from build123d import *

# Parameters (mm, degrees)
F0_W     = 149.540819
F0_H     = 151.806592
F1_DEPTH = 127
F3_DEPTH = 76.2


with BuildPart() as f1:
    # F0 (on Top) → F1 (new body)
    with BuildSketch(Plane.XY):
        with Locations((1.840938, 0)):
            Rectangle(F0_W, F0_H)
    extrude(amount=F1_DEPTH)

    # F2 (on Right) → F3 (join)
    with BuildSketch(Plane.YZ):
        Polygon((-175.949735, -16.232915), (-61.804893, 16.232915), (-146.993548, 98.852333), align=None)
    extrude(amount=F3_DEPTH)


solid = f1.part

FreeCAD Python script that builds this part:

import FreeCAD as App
import Part
import Sketcher

V = App.Vector


def add_polygon(sketch, points):
    """Adds a closed chain of lines whose ends are joined by coincident constraints."""
    first, n = sketch.GeometryCount, len(points)
    for a, b in zip(points, points[1:] + points[:1]):
        sketch.addGeometry(Part.LineSegment(App.Vector(*a, 0), App.Vector(*b, 0)), False)
    for i in range(n):
        sketch.addConstraint(Sketcher.Constraint("Coincident", first + i, 2, first + (i + 1) % n, 1))

doc = App.newDocument("Part")
params = doc.addObject("Spreadsheet::Sheet", "Params")
for row, (alias, value) in enumerate([
    ("pad1_length", "5 in"),
    ("pad2_length", "3 in"),
], start=1):
    params.set(f"A{row}", alias)
    params.set(f"B{row}", "=" + value)
    params.setAlias(f"B{row}", alias)

body = doc.addObject("PartDesign::Body", "Body")

# Sketch on XY plane
sketch1 = doc.addObject("Sketcher::SketchObject", "Sketch")
body.addObject(sketch1)
sketch1.AttachmentSupport = (doc.XY_Plane, [""])
sketch1.MapMode = "FlatFace"
add_polygon(sketch1, [(-72.929472, 75.903296), (-72.929472, -75.903296), (76.611347, -75.903296), (76.611347, 75.903296)])  # lines 0-3
sketch1.addConstraint([
    Sketcher.Constraint("Vertical", 0),
    Sketcher.Constraint("Horizontal", 1),
    Sketcher.Constraint("Vertical", 2),
    Sketcher.Constraint("Horizontal", 3),
    Sketcher.Constraint("DistanceX", 1, 1, 1, 2, 149.540819),
    Sketcher.Constraint("DistanceY", 0, 2, 0, 1, 151.806592),
    Sketcher.Constraint("DistanceX", 0, 2, -1, 1, 72.929472),
    Sketcher.Constraint("DistanceY", 0, 2, -1, 1, 75.903296),
])
pad1 = doc.addObject("PartDesign::Pad", "Pad")
body.addObject(pad1)
pad1.Profile = sketch1
pad1.setExpression("Length", "Params.pad1_length")

# Sketch on YZ plane
sketch2 = doc.addObject("Sketcher::SketchObject", "Sketch001")
body.addObject(sketch2)
sketch2.AttachmentSupport = (doc.YZ_Plane, [""])
sketch2.MapMode = "FlatFace"
add_polygon(sketch2, [(-175.949735, -16.232915), (-61.804893, 16.232915), (-146.993548, 98.852333)])  # lines 0-2
sketch2.addConstraint([
    Sketcher.Constraint("Equal", 0, 1),
    Sketcher.Constraint("Equal", 1, 2),
    Sketcher.Constraint("DistanceX", 1, 2, -1, 1, 146.993548),
    Sketcher.Constraint("DistanceY", 2, 2, 0, 2, 32.46583),
    Sketcher.Constraint("DistanceY", 2, 2, 1, 2, 115.085248),
    Sketcher.Constraint("DistanceY", -1, 1, 0, 2, 16.232915),
])
pad2 = doc.addObject("PartDesign::Pad", "Pad001")
body.addObject(pad2)
pad2.Profile = sketch2
pad2.setExpression("Length", "Params.pad2_length")

doc.recompute()
